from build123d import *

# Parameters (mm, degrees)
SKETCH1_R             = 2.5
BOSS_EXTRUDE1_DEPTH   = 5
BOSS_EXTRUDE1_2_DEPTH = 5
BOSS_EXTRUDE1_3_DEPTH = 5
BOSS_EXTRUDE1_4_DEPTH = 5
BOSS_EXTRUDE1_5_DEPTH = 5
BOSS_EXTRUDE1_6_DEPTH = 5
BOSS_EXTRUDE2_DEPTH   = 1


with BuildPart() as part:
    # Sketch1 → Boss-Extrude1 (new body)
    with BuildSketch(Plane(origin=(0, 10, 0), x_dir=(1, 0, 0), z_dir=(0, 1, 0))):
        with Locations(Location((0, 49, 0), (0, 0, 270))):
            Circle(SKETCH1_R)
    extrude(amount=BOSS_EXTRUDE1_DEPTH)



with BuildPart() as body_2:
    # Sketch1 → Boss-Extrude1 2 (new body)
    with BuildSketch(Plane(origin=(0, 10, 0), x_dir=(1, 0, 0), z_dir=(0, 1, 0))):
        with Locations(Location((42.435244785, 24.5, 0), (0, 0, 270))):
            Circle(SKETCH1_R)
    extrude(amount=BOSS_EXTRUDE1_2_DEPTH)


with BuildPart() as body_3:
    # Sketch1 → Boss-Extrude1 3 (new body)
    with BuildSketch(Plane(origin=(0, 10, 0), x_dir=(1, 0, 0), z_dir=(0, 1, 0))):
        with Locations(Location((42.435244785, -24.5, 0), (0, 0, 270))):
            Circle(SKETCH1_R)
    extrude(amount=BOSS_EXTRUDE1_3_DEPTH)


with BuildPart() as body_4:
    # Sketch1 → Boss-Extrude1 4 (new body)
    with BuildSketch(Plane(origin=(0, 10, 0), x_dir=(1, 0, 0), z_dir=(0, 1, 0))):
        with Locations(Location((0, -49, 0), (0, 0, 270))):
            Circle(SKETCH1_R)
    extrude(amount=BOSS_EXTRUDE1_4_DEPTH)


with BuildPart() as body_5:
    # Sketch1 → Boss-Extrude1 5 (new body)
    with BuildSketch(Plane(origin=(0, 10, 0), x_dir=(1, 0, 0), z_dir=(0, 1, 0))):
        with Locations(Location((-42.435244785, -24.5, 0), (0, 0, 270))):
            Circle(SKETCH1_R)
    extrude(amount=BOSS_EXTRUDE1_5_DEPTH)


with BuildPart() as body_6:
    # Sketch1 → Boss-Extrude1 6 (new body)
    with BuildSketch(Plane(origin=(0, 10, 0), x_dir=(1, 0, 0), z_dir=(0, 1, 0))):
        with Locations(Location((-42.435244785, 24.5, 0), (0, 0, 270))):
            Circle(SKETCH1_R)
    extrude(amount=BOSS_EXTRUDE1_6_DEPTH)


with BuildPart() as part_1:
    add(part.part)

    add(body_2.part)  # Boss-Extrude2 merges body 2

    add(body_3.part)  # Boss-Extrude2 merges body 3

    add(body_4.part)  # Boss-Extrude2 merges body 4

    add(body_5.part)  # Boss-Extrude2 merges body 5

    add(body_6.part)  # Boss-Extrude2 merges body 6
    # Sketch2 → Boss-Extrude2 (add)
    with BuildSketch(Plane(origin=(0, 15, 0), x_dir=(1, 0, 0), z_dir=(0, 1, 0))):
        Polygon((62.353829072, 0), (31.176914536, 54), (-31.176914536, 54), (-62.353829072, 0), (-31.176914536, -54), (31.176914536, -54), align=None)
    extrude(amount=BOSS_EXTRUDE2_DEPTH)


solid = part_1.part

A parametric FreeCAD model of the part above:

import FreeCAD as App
import Part
import Sketcher
from FreeCAD import Vector
Q = App.Units.Quantity

doc = App.newDocument("Part")
body = doc.addObject("PartDesign::Body", "Body")

# Sketch on XZ plane
sketch1 = body.newObject("Sketcher::SketchObject", "Sketch")
sketch1.AttachmentSupport = (doc.getObject("XZ_Plane"), [""])
sketch1.MapMode = "FlatFace"
sketch1.AttachmentOffset = App.Placement(Vector(0, 0, -10), App.Rotation())
sketch1.addGeometry(Part.Circle(Vector(0, -49, 0), Vector(0, 0, 1), 2.5), False)
sketch1.addConstraint(Sketcher.Constraint("PointOnObject", 0, 3, -2))
sketch1.addConstraint(Sketcher.Constraint("Diameter", 0, Q("5 mm")))
sketch1.addConstraint(Sketcher.Constraint("DistanceY", 0, 3, -1, 1, Q("49 mm")))
pad1 = body.newObject("PartDesign::Pad", "Pad")
pad1.Profile = sketch1
pad1.Length = 5
pad1.Reversed = True
body2 = doc.addObject("PartDesign::Body", "Body001")

# Sketch on XZ plane
sketch2 = body2.newObject("Sketcher::SketchObject", "Sketch001")
sketch2.AttachmentSupport = (doc.getObject("XZ_Plane001"), [""])
sketch2.MapMode = "FlatFace"
sketch2.AttachmentOffset = App.Placement(Vector(0, 0, -10), App.Rotation())
sketch2.addGeometry(Part.Circle(Vector(42.4, -24.5, 0), Vector(0, 0, 1), 2.5), False)
sketch2.addConstraint(Sketcher.Constraint("Diameter", 0, Q("5 mm")))
sketch2.addConstraint(Sketcher.Constraint("DistanceY", 0, 3, -1, 1, Q("24.5 mm")))
sketch2.addConstraint(Sketcher.Constraint("DistanceX", -1, 1, 0, 3, Q("42.435245 mm")))
pad2 = body2.newObject("PartDesign::Pad", "Pad001")
pad2.Profile = sketch2
pad2.Length = 5
pad2.Reversed = True
body3 = doc.addObject("PartDesign::Body", "Body002")

# Sketch on XZ plane
sketch3 = body3.newObject("Sketcher::SketchObject", "Sketch002")
sketch3.AttachmentSupport = (doc.getObject("XZ_Plane002"), [""])
sketch3.MapMode = "FlatFace"
sketch3.AttachmentOffset = App.Placement(Vector(0, 0, -10), App.Rotation())
sketch3.addGeometry(Part.Circle(Vector(42.4, 24.5, 0), Vector(0, 0, 1), 2.5), False)
sketch3.addConstraint(Sketcher.Constraint("Diameter", 0, Q("5 mm")))
sketch3.addConstraint(Sketcher.Constraint("DistanceY", -1, 1, 0, 3, Q("24.5 mm")))
sketch3.addConstraint(Sketcher.Constraint("DistanceX", -1, 1, 0, 3, Q("42.435245 mm")))
pad3 = body3.newObject("PartDesign::Pad", "Pad002")
pad3.Profile = sketch3
pad3.Length = 5
pad3.Reversed = True
body4 = doc.addObject("PartDesign::Body", "Body003")

# Sketch on XZ plane
sketch4 = body4.newObject("Sketcher::SketchObject", "Sketch003")
sketch4.AttachmentSupport = (doc.getObject("XZ_Plane003"), [""])
sketch4.MapMode = "FlatFace"
sketch4.AttachmentOffset = App.Placement(Vector(0, 0, -10), App.Rotation())
sketch4.addGeometry(Part.Circle(Vector(0, 49, 0), Vector(0, 0, 1), 2.5), False)
sketch4.addConstraint(Sketcher.Constraint("PointOnObject", 0, 3, -2))
sketch4.addConstraint(Sketcher.Constraint("Diameter", 0, Q("5 mm")))
sketch4.addConstraint(Sketcher.Constraint("DistanceY", -1, 1, 0, 3, Q("49 mm")))
pad4 = body4.newObject("PartDesign::Pad", "Pad003")
pad4.Profile = sketch4
pad4.Length = 5
pad4.Reversed = True
body5 = doc.addObject("PartDesign::Body", "Body004")

# Sketch on XZ plane
sketch5 = body5.newObject("Sketcher::SketchObject", "Sketch004")
sketch5.AttachmentSupport = (doc.getObject("XZ_Plane004"), [""])
sketch5.MapMode = "FlatFace"
sketch5.AttachmentOffset = App.Placement(Vector(0, 0, -10), App.Rotation())
sketch5.addGeometry(Part.Circle(Vector(-42.4, 24.5, 0), Vector(0, 0, 1), 2.5), False)
sketch5.addConstraint(Sketcher.Constraint("Diameter", 0, Q("5 mm")))
sketch5.addConstraint(Sketcher.Constraint("DistanceY", -1, 1, 0, 3, Q("24.5 mm")))
sketch5.addConstraint(Sketcher.Constraint("DistanceX", 0, 3, -1, 1, Q("42.435245 mm")))
pad5 = body5.newObject("PartDesign::Pad", "Pad004")
pad5.Profile = sketch5
pad5.Length = 5
pad5.Reversed = True
body6 = doc.addObject("PartDesign::Body", "Body005")

# Sketch on XZ plane
sketch6 = body6.newObject("Sketcher::SketchObject", "Sketch005")
sketch6.AttachmentSupport = (doc.getObject("XZ_Plane005"), [""])
sketch6.MapMode = "FlatFace"
sketch6.AttachmentOffset = App.Placement(Vector(0, 0, -10), App.Rotation())
sketch6.addGeometry(Part.Circle(Vector(-42.4, -24.5, 0), Vector(0, 0, 1), 2.5), False)
sketch6.addConstraint(Sketcher.Constraint("Diameter", 0, Q("5 mm")))
sketch6.addConstraint(Sketcher.Constraint("DistanceY", 0, 3, -1, 1, Q("24.5 mm")))
sketch6.addConstraint(Sketcher.Constraint("DistanceX", 0, 3, -1, 1, Q("42.435245 mm")))
pad6 = body6.newObject("PartDesign::Pad", "Pad005")
pad6.Profile = sketch6
pad6.Length = 5
pad6.Reversed = True
body.AllowCompound = True
doc.recompute()

boolean = body.newObject("PartDesign::Boolean", "Boolean")
boolean.Type = "Fuse"
boolean.addObjects([body2])
doc.recompute()

boolean2 = body.newObject("PartDesign::Boolean", "Boolean001")
boolean2.Type = "Fuse"
boolean2.addObjects([body3])
doc.recompute()

boolean3 = body.newObject("PartDesign::Boolean", "Boolean002")
boolean3.Type = "Fuse"
boolean3.addObjects([body4])
doc.recompute()

boolean4 = body.newObject("PartDesign::Boolean", "Boolean003")
boolean4.Type = "Fuse"
boolean4.addObjects([body5])
doc.recompute()

boolean5 = body.newObject("PartDesign::Boolean", "Boolean004")
boolean5.Type = "Fuse"
boolean5.addObjects([body6])

# Sketch on XZ plane
sketch7 = body.newObject("Sketcher::SketchObject", "Sketch006")
sketch7.AttachmentSupport = (doc.getObject("XZ_Plane"), [""])
sketch7.MapMode = "FlatFace"
sketch7.AttachmentOffset = App.Placement(Vector(0, 0, -15), App.Rotation())
sketch7.addGeometry(Part.LineSegment(Vector(62, 0, 0), Vector(31, -54, 0)), False)
sketch7.addGeometry(Part.LineSegment(Vector(31, -54, 0), Vector(-31, -54, 0)), False)
sketch7.addGeometry(Part.LineSegment(Vector(-31, -54, 0), Vector(-62, 0, 0)), False)
sketch7.addGeometry(Part.LineSegment(Vector(-62, 0, 0), Vector(-31, 54, 0)), False)
sketch7.addGeometry(Part.LineSegment(Vector(-31, 54, 0), Vector(31, 54, 0)), False)
sketch7.addGeometry(Part.LineSegment(Vector(31, 54, 0), Vector(62, 0, 0)), False)
sketch7.addConstraint(Sketcher.Constraint("Coincident", 0, 2, 1, 1))
sketch7.addConstraint(Sketcher.Constraint("Coincident", 1, 2, 2, 1))
sketch7.addConstraint(Sketcher.Constraint("Coincident", 2, 2, 3, 1))
sketch7.addConstraint(Sketcher.Constraint("Coincident", 3, 2, 4, 1))
sketch7.addConstraint(Sketcher.Constraint("Coincident", 4, 2, 5, 1))
sketch7.addConstraint(Sketcher.Constraint("Coincident", 5, 2, 0, 1))
sketch7.addConstraint(Sketcher.Constraint("Horizontal", 1))
sketch7.addConstraint(Sketcher.Constraint("Horizontal", 4))
sketch7.addConstraint(Sketcher.Constraint("Symmetric", 0, 2, 3, 2, -1, 1))
sketch7.addConstraint(Sketcher.Constraint("Symmetric", 2, 2, 5, 2, -1, 1))
sketch7.addConstraint(Sketcher.Constraint("PointOnObject", 2, 2, -1))
sketch7.addConstraint(Sketcher.Constraint("Parallel", 2, 5))
sketch7.addConstraint(Sketcher.Constraint("Vertical", 1, 2, 3, 2))
sketch7.addConstraint(Sketcher.Constraint("Angle", 0, Q("-120 deg")))
sketch7.addConstraint(Sketcher.Constraint("DistanceY", 0, 2, -1, 1, Q("54 mm")))
sketch7.addConstraint(Sketcher.Constraint("DistanceX", 1, 2, 1, 1, Q("62.353829 mm")))
pad7 = body.newObject("PartDesign::Pad", "Pad006")
pad7.Profile = sketch7
pad7.Length = 1
pad7.Reversed = True

doc.recompute()
